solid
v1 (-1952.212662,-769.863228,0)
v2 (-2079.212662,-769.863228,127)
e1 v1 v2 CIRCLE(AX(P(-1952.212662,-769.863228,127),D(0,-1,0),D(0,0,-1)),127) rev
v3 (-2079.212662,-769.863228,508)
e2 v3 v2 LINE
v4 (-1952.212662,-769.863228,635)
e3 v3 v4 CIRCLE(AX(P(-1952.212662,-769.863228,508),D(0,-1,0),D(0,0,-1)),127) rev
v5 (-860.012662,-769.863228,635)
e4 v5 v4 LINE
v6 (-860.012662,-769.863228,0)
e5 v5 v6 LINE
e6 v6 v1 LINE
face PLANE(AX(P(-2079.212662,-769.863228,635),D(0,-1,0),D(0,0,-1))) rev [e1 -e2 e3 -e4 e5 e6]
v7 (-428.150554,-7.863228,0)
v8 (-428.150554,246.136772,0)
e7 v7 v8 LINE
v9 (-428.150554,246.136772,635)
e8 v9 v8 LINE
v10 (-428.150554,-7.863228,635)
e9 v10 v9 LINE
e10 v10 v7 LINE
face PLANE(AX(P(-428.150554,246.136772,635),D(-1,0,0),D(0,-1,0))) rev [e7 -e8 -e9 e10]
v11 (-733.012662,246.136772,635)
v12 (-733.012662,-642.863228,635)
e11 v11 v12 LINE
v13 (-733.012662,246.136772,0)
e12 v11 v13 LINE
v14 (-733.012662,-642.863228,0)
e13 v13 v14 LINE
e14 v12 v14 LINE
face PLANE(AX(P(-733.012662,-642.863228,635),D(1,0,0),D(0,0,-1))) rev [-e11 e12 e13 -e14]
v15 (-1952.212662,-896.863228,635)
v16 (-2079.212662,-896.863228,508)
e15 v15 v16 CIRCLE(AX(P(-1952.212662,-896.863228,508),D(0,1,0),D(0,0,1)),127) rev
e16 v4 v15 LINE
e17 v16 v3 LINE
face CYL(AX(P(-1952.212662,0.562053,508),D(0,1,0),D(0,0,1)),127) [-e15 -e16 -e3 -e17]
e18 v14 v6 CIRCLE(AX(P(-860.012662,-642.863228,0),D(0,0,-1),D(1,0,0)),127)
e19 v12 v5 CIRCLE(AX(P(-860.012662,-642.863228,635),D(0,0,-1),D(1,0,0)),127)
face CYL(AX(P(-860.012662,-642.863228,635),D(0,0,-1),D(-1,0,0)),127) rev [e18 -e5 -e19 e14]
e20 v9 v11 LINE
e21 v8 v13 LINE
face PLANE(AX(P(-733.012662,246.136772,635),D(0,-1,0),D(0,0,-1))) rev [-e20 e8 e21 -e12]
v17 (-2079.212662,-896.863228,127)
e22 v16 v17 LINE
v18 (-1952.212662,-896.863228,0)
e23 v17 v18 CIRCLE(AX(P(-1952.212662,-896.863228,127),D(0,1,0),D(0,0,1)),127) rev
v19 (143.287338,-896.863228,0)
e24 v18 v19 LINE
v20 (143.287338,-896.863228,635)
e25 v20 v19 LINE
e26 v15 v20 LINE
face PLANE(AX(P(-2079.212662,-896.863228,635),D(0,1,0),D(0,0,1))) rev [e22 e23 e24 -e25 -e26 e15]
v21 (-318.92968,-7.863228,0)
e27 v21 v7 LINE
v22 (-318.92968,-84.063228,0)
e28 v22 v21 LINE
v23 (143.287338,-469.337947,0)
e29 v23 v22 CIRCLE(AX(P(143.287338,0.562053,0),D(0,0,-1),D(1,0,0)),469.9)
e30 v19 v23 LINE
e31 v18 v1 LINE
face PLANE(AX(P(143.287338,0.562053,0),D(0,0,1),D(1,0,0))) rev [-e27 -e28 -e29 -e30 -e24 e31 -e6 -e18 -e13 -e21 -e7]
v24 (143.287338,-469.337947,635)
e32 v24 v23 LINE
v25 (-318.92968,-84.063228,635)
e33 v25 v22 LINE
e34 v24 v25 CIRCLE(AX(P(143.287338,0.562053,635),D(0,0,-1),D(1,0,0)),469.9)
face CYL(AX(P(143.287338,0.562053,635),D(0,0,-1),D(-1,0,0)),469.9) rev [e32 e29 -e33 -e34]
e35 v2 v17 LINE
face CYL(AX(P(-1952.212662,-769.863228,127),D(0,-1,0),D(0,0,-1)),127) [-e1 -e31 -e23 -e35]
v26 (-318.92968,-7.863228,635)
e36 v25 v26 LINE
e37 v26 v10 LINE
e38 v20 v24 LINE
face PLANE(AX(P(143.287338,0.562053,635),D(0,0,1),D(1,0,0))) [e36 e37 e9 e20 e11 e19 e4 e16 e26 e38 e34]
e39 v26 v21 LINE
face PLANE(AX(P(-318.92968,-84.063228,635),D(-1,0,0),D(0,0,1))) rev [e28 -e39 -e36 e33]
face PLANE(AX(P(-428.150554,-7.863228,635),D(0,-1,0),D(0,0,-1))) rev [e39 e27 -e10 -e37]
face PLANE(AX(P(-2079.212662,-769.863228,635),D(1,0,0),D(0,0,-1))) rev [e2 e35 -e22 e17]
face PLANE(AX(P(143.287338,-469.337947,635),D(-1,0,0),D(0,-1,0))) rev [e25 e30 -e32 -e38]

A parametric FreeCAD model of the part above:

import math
import FreeCAD as App
import Part
import Sketcher

V = App.Vector
Q = App.Units.Quantity


def edges_at(feature, points):
    """Names of the edges that pass closest to the given points."""
    edges = feature.Shape.Edges
    near = lambda p: min(range(len(edges)), key=lambda i: edges[i].distToShape(Part.Vertex(*p))[0])
    return sorted({f"Edge{near(p) + 1}" for p in points})

doc = App.newDocument("Part")
body = doc.addObject("PartDesign::Body", "Body")

# Sketch on XY plane
sketch1 = doc.addObject("Sketcher::SketchObject", "Sketch")
body.addObject(sketch1)
sketch1.AttachmentSupport = (doc.XY_Plane, [""])
sketch1.MapMode = "FlatFace"
sketch1.addGeometry(Part.LineSegment(V(-860, -770, 0), V(-2079, -770, 0)), False)
sketch1.addGeometry(Part.LineSegment(V(-2079, -770, 0), V(-2079, -897, 0)), False)
sketch1.addGeometry(Part.LineSegment(V(-2079, -897, 0), V(143, -897, 0)), False)
sketch1.addGeometry(Part.LineSegment(V(143, -897, 0), V(143, -469, 0)), False)
sketch1.addGeometry(Part.ArcOfCircle(Part.Circle(V(143, 1, 0), V(0, 0, 1), 470), math.radians(-170), math.radians(-90)), False)
sketch1.addGeometry(Part.LineSegment(V(-319, -84, 0), V(-319, -8, 0)), False)
sketch1.addGeometry(Part.LineSegment(V(-319, -8, 0), V(-428, -8, 0)), False)
sketch1.addGeometry(Part.LineSegment(V(-428, -8, 0), V(-428, 246, 0)), False)
sketch1.addGeometry(Part.LineSegment(V(-428, 246, 0), V(-733, 246, 0)), False)
sketch1.addGeometry(Part.LineSegment(V(-733, 246, 0), V(-733, -643, 0)), False)
sketch1.addGeometry(Part.ArcOfCircle(Part.Circle(V(-860, -643, 0), V(0, 0, 1), 127), math.radians(-90), math.radians(0)), False)
sketch1.addConstraint(Sketcher.Constraint("Coincident", 0, 2, 1, 1))
sketch1.addConstraint(Sketcher.Constraint("Coincident", 1, 2, 2, 1))
sketch1.addConstraint(Sketcher.Constraint("Coincident", 2, 2, 3, 1))
sketch1.addConstraint(Sketcher.Constraint("Coincident", 3, 2, 4, 2))
sketch1.addConstraint(Sketcher.Constraint("Coincident", 4, 1, 5, 1))
sketch1.addConstraint(Sketcher.Constraint("Coincident", 5, 2, 6, 1))
sketch1.addConstraint(Sketcher.Constraint("Coincident", 6, 2, 7, 1))
sketch1.addConstraint(Sketcher.Constraint("Coincident", 7, 2, 8, 1))
sketch1.addConstraint(Sketcher.Constraint("Coincident", 8, 2, 9, 1))
sketch1.addConstraint(Sketcher.Constraint("Tangent", 9, 2, 10, 2))
sketch1.addConstraint(Sketcher.Constraint("Tangent", 10, 1, 0, 1))
sketch1.addConstraint(Sketcher.Constraint("Horizontal", 0))
sketch1.addConstraint(Sketcher.Constraint("Vertical", 1))
sketch1.addConstraint(Sketcher.Constraint("Horizontal", 2))
sketch1.addConstraint(Sketcher.Constraint("Vertical", 3))
sketch1.addConstraint(Sketcher.Constraint("Vertical", 5))
sketch1.addConstraint(Sketcher.Constraint("Horizontal", 6))
sketch1.addConstraint(Sketcher.Constraint("Vertical", 7))
sketch1.addConstraint(Sketcher.Constraint("Horizontal", 8))
sketch1.addConstraint(Sketcher.Constraint("Vertical", 9))
sketch1.addConstraint(Sketcher.Constraint("Vertical", 4, 3, 2, 2))
sketch1.addConstraint(Sketcher.Constraint("Radius", 10, Q("5 in")))
sketch1.addConstraint(Sketcher.Constraint("Radius", 4, Q("18.5 in")))
sketch1.addConstraint(Sketcher.Constraint("DistanceX", 0, 2, 0, 1, Q("48 in")))
sketch1.addConstraint(Sketcher.Constraint("DistanceY", 1, 2, 1, 1, Q("5 in")))
sketch1.addConstraint(Sketcher.Constraint("DistanceY", 5, 1, 5, 2, Q("3 in")))
sketch1.addConstraint(Sketcher.Constraint("DistanceY", 7, 1, 7, 2, Q("10 in")))
sketch1.addConstraint(Sketcher.Constraint("DistanceY", 9, 2, 9, 1, Q("35 in")))
sketch1.addConstraint(Sketcher.Constraint("DistanceX", 2, 1, 2, 2, Q("87.5 in")))
sketch1.addConstraint(Sketcher.Constraint("DistanceY", 3, 1, 3, 2, Q("427.525281 mm")))
sketch1.addConstraint(Sketcher.Constraint("DistanceX", 6, 2, 6, 1, Q("109.220874 mm")))
sketch1.addConstraint(Sketcher.Constraint("DistanceX", -1, 1, 4, 3, Q("143.287338 mm")))
sketch1.addConstraint(Sketcher.Constraint("DistanceY", 0, 2, -1, 1, Q("769.863228 mm")))
pad1 = doc.addObject("PartDesign::Pad", "Pad")
body.addObject(pad1)
pad1.Profile = sketch1
pad1.Length = Q("25 in")
doc.recompute()

fillet = doc.addObject("PartDesign::Fillet", "Fillet")
body.addObject(fillet)
fillet.Base = (pad1, edges_at(pad1, [(-2079.213, -833.363, 635)]))
fillet.Radius = Q("5 in")
doc.recompute()

fillet2 = doc.addObject("PartDesign::Fillet", "Fillet001")
body.addObject(fillet2)
fillet2.Base = (fillet, edges_at(fillet, [(-2079.213, -833.363, 0)]))
fillet2.Radius = Q("5 in")

doc.recompute()
